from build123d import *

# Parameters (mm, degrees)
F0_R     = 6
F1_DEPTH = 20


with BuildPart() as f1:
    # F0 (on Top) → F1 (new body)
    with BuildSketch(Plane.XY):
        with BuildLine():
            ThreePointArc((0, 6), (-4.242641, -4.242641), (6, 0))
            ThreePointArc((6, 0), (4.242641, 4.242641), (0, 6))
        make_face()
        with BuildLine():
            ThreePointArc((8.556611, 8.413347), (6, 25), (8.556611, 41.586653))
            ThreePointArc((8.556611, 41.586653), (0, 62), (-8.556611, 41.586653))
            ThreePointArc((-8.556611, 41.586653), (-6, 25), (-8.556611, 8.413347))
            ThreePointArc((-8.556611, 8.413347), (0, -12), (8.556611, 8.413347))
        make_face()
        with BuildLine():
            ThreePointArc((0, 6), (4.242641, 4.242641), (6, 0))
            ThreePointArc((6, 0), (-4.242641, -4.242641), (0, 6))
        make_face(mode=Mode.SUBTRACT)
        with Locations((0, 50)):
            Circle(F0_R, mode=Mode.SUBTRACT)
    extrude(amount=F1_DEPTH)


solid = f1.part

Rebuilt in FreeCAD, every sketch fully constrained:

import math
import FreeCAD as App
import Part
import Sketcher

V = App.Vector
Q = App.Units.Quantity

doc = App.newDocument("Part")
body = doc.addObject("PartDesign::Body", "Body")

# Sketch on XY plane
sketch1 = body.newObject("Sketcher::SketchObject", "Sketch")
sketch1.AttachmentSupport = (doc.getObject("XY_Plane"), [""])
sketch1.MapMode = "FlatFace"
sketch1.addGeometry([
    Part.ArcOfCircle(Part.Circle(V(61.083334, 25, 0), V(0, 0, 1), 55.083334), math.radians(162.475159), math.radians(197.524841)),  # 0
    Part.ArcOfCircle(Part.Circle(V(0, 50, 0), V(0, 0, 1), 12), math.radians(-44.516308), math.radians(224.516308)),  # 1
    Part.ArcOfCircle(Part.Circle(V(-61.083334, 25, 0), V(0, 0, 1), 55.083334), math.radians(-17.524841), math.radians(17.524841)),  # 2
    Part.ArcOfCircle(Part.Circle(V(0, 0, 0), V(0, 0, 1), 12), math.radians(135.483692), math.radians(404.516308)),  # 3
    Part.ArcOfCircle(Part.Circle(V(0, 0, 0), V(0, 0, 1), 6), math.radians(89.999998), math.radians(360.000002)),  # 4
    Part.ArcOfCircle(Part.Circle(V(0.000001, 0.000001, 0), V(0, 0, 1), 5.999999), math.radians(-0.00001), math.radians(90.00001)),  # 5
    Part.Circle(V(0, 50, 0), V(0, 0, 1), 6),  # 6
], False)
sketch1.addConstraint([
    Sketcher.Constraint("Coincident", 0, 1, 1, 1),
    Sketcher.Constraint("Coincident", 1, 2, 2, 2),
    Sketcher.Constraint("Coincident", 2, 1, 3, 1),
    Sketcher.Constraint("Coincident", 3, 2, 0, 2),
    Sketcher.Constraint("Tangent", 4, 1, 5, 2),
    Sketcher.Constraint("Coincident", 5, 1, 4, 2),
    Sketcher.Constraint("Coincident", 3, 3, -1, 1),
    Sketcher.Constraint("Coincident", 4, 3, -1, 1),
    Sketcher.Constraint("Coincident", 6, 3, 1, 3),
    Sketcher.Constraint("Equal", 0, 2),
    Sketcher.Constraint("Equal", 1, 3),
    Sketcher.Constraint("Equal", 5, 6),
    Sketcher.Constraint("Symmetric", 0, 3, 2, 3, -2),
    Sketcher.Constraint("PointOnObject", 1, 3, -2),
    Sketcher.Constraint("PointOnObject", 4, 1, -2),
    Sketcher.Constraint("PointOnObject", 5, 1, -1),
    Sketcher.Constraint("Vertical", 1, 2, 2, 1),
    Sketcher.Constraint("Diameter", 6, Q("12 mm")),
    Sketcher.Constraint("Radius", 1, Q("12 mm")),
    Sketcher.Constraint("DistanceY", -1, 1, 0, 3, Q("25 mm")),
    Sketcher.Constraint("Radius", 0, Q("55.083334 mm")),
    Sketcher.Constraint("DistanceX", -1, 1, 0, 1, Q("8.556611 mm")),
])
pad1 = body.newObject("PartDesign::Pad", "Pad")
pad1.Profile = sketch1
pad1.Length = 20

doc.recompute()
